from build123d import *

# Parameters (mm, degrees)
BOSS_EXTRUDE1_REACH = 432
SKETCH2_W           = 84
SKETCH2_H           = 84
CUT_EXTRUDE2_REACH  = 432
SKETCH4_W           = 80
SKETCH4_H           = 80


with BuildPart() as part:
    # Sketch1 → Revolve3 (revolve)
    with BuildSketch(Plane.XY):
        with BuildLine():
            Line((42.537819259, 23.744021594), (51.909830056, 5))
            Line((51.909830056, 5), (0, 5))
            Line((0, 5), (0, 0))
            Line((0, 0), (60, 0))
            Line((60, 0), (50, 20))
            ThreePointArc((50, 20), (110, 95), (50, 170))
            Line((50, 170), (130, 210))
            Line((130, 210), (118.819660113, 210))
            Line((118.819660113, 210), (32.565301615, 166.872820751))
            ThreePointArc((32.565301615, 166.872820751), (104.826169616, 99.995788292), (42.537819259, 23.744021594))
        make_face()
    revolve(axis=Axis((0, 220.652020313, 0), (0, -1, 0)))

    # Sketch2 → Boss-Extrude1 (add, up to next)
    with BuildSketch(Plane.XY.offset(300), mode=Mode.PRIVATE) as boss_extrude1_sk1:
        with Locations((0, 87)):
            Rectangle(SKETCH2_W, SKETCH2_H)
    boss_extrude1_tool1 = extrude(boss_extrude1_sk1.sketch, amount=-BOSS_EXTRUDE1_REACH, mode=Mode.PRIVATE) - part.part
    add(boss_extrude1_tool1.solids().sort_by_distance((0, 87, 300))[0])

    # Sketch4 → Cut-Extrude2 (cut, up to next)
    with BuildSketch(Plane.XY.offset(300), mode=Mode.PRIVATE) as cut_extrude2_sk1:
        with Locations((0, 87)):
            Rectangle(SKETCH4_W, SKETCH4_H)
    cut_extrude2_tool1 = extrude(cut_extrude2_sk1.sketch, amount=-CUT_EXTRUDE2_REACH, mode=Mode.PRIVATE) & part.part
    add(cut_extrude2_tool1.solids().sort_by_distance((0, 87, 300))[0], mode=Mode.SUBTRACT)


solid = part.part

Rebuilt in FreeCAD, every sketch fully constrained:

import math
import FreeCAD as App
import Part
import Sketcher
Q = App.Units.Quantity

doc = App.newDocument("Part")
params = doc.addObject("Spreadsheet::Sheet", "Params")
for row, (alias, value) in enumerate([
    ("sketch1_width", "60 mm"),
    ("sketch1_height", "5 mm"),
    ("revolution_angle", "360 deg"),
    ("sketch2_width", "84 mm"),
    ("sketch3_width", "80 mm"),
], start=1):
    params.set(f"A{row}", alias)
    params.set(f"B{row}", "=" + value)
    params.setAlias(f"B{row}", alias)

body = doc.addObject("PartDesign::Body", "Body")

sketch1 = body.newObject("Sketcher::SketchObject", "Sketch")
sketch1.AttachmentSupport = (doc.getObject("XY_Plane"), [""])
sketch1.MapMode = "FlatFace"
sketch1.addGeometry([
    Part.LineSegment(App.Vector(43, 24, 0), App.Vector(52, 5, 0)),
    Part.LineSegment(App.Vector(52, 5, 0), App.Vector(0, 5, 0)),
    Part.LineSegment(App.Vector(0, 5, 0), App.Vector(0, 0, 0)),
    Part.LineSegment(App.Vector(0, 0, 0), App.Vector(60, 0, 0)),
    Part.LineSegment(App.Vector(60, 0, 0), App.Vector(50, 20, 0)),
    Part.ArcOfCircle(Part.Circle(App.Vector(33, 95, 0), App.Vector(0, 0, 1), 77), math.radians(-77), math.radians(77)),
    Part.LineSegment(App.Vector(50, 170, 0), App.Vector(130, 210, 0)),
    Part.LineSegment(App.Vector(130, 210, 0), App.Vector(119, 210, 0)),
    Part.LineSegment(App.Vector(119, 210, 0), App.Vector(33, 167, 0)),
    Part.ArcOfCircle(Part.Circle(App.Vector(33, 95, 0), App.Vector(0, 0, 1), 72), math.radians(-82), math.radians(90)),
], False)
sketch1.addConstraint([
    Sketcher.Constraint("Coincident", 0, 2, 1, 1),
    Sketcher.Constraint("Coincident", 1, 2, 2, 1),
    Sketcher.Constraint("Coincident", 2, 2, 3, 1),
    Sketcher.Constraint("Coincident", 3, 2, 4, 1),
    Sketcher.Constraint("Coincident", 4, 2, 5, 1),
    Sketcher.Constraint("Coincident", 5, 2, 6, 1),
    Sketcher.Constraint("Coincident", 6, 2, 7, 1),
    Sketcher.Constraint("Coincident", 7, 2, 8, 1),
    Sketcher.Constraint("Coincident", 8, 2, 9, 2),
    Sketcher.Constraint("Coincident", 9, 1, 0, 1),
    Sketcher.Constraint("Horizontal", 1),
    Sketcher.Constraint("Vertical", 2),
    Sketcher.Constraint("Horizontal", 3),
    Sketcher.Constraint("Horizontal", 7),
    Sketcher.Constraint("Coincident", 2, 2, -1, 1),
    Sketcher.Constraint("Coincident", 9, 3, 5, 3),
    Sketcher.Constraint("Parallel", 0, 4),
    Sketcher.Constraint("Perpendicular", 4, 6),
    Sketcher.Constraint("Parallel", 6, 8),
    Sketcher.Constraint("Vertical", 4, 2, 5, 2),
    Sketcher.Constraint("DistanceX", 3, 1, 3, 2, Q("60 mm")),
    Sketcher.Constraint("DistanceY", 2, 2, 2, 1, Q("5 mm")),
    Sketcher.Constraint("DistanceY", -1, 1, 5, 3, Q("95 mm")),
    Sketcher.Constraint("DistanceX", -1, 1, 4, 2, Q("50 mm")),
    Sketcher.Constraint("DistanceY", -1, 1, 4, 2, Q("20 mm")),
    Sketcher.Constraint("DistanceX", -1, 1, 6, 2, Q("130 mm")),
    Sketcher.Constraint("Radius", 5, Q("76.875 mm")),
    Sketcher.Constraint("Radius", 9, Q("71.875 mm")),
    Sketcher.Constraint("DistanceX", 1, 2, 1, 1, Q("51.90983 mm")),
    Sketcher.Constraint("DistanceX", 7, 2, 7, 1, Q("11.18034 mm")),
])
sketch1.setExpression("Constraints[20]", "Params.sketch1_width")
sketch1.setExpression("Constraints[21]", "Params.sketch1_height")
revolution = body.newObject("PartDesign::Revolution", "Revolution")
revolution.Profile = sketch1
revolution.ReferenceAxis = (sketch1, ["V_Axis"])
revolution.setExpression("Angle", "Params.revolution_angle")

sketch2 = body.newObject("Sketcher::SketchObject", "Sketch001")
sketch2.AttachmentSupport = (doc.getObject("XY_Plane"), [""])
sketch2.MapMode = "FlatFace"
sketch2.AttachmentOffset = App.Placement(App.Vector(0, 0, 300), App.Rotation())
sketch2.addGeometry([
    Part.LineSegment(App.Vector(-42, 129, 0), App.Vector(-42, 45, 0)),
    Part.LineSegment(App.Vector(-42, 45, 0), App.Vector(42, 45, 0)),
    Part.LineSegment(App.Vector(42, 45, 0), App.Vector(42, 129, 0)),
    Part.LineSegment(App.Vector(42, 129, 0), App.Vector(-42, 129, 0)),
], False)
sketch2.addConstraint([
    Sketcher.Constraint("Coincident", 0, 2, 1, 1),
    Sketcher.Constraint("Coincident", 1, 2, 2, 1),
    Sketcher.Constraint("Coincident", 2, 2, 3, 1),
    Sketcher.Constraint("Coincident", 3, 2, 0, 1),
    Sketcher.Constraint("Vertical", 0),
    Sketcher.Constraint("Horizontal", 1),
    Sketcher.Constraint("Vertical", 2),
    Sketcher.Constraint("Horizontal", 3),
    Sketcher.Constraint("Equal", 3, 0),
    Sketcher.Constraint("DistanceX", 1, 1, 1, 2, Q("84 mm")),
    Sketcher.Constraint("DistanceX", 0, 2, -1, 1, Q("42 mm")),
    Sketcher.Constraint("DistanceY", -1, 1, 0, 2, Q("45 mm")),
])
sketch2.setExpression("Constraints[9]", "Params.sketch2_width")
pad1 = body.newObject("PartDesign::Pad", "Pad")
pad1.Profile = sketch2
pad1.Type = "UpToFirst"
pad1.Reversed = True

sketch3 = body.newObject("Sketcher::SketchObject", "Sketch002")
sketch3.AttachmentSupport = (doc.getObject("XY_Plane"), [""])
sketch3.MapMode = "FlatFace"
sketch3.AttachmentOffset = App.Placement(App.Vector(0, 0, 300), App.Rotation())
sketch3.addGeometry([
    Part.LineSegment(App.Vector(-40, 127, 0), App.Vector(-40, 47, 0)),
    Part.LineSegment(App.Vector(-40, 47, 0), App.Vector(40, 47, 0)),
    Part.LineSegment(App.Vector(40, 47, 0), App.Vector(40, 127, 0)),
    Part.LineSegment(App.Vector(40, 127, 0), App.Vector(-40, 127, 0)),
], False)
sketch3.addConstraint([
    Sketcher.Constraint("Coincident", 0, 2, 1, 1),
    Sketcher.Constraint("Coincident", 1, 2, 2, 1),
    Sketcher.Constraint("Coincident", 2, 2, 3, 1),
    Sketcher.Constraint("Coincident", 3, 2, 0, 1),
    Sketcher.Constraint("Vertical", 0),
    Sketcher.Constraint("Horizontal", 1),
    Sketcher.Constraint("Vertical", 2),
    Sketcher.Constraint("Horizontal", 3),
    Sketcher.Constraint("Equal", 3, 0),
    Sketcher.Constraint("DistanceX", 1, 1, 1, 2, Q("80 mm")),
    Sketcher.Constraint("DistanceX", 0, 2, -1, 1, Q("40 mm")),
    Sketcher.Constraint("DistanceY", -1, 1, 0, 2, Q("47 mm")),
])
sketch3.setExpression("Constraints[9]", "Params.sketch3_width")
pocket1 = body.newObject("PartDesign::Pocket", "Pocket")
pocket1.Profile = sketch3
pocket1.Type = "UpToFirst"

doc.recompute()
